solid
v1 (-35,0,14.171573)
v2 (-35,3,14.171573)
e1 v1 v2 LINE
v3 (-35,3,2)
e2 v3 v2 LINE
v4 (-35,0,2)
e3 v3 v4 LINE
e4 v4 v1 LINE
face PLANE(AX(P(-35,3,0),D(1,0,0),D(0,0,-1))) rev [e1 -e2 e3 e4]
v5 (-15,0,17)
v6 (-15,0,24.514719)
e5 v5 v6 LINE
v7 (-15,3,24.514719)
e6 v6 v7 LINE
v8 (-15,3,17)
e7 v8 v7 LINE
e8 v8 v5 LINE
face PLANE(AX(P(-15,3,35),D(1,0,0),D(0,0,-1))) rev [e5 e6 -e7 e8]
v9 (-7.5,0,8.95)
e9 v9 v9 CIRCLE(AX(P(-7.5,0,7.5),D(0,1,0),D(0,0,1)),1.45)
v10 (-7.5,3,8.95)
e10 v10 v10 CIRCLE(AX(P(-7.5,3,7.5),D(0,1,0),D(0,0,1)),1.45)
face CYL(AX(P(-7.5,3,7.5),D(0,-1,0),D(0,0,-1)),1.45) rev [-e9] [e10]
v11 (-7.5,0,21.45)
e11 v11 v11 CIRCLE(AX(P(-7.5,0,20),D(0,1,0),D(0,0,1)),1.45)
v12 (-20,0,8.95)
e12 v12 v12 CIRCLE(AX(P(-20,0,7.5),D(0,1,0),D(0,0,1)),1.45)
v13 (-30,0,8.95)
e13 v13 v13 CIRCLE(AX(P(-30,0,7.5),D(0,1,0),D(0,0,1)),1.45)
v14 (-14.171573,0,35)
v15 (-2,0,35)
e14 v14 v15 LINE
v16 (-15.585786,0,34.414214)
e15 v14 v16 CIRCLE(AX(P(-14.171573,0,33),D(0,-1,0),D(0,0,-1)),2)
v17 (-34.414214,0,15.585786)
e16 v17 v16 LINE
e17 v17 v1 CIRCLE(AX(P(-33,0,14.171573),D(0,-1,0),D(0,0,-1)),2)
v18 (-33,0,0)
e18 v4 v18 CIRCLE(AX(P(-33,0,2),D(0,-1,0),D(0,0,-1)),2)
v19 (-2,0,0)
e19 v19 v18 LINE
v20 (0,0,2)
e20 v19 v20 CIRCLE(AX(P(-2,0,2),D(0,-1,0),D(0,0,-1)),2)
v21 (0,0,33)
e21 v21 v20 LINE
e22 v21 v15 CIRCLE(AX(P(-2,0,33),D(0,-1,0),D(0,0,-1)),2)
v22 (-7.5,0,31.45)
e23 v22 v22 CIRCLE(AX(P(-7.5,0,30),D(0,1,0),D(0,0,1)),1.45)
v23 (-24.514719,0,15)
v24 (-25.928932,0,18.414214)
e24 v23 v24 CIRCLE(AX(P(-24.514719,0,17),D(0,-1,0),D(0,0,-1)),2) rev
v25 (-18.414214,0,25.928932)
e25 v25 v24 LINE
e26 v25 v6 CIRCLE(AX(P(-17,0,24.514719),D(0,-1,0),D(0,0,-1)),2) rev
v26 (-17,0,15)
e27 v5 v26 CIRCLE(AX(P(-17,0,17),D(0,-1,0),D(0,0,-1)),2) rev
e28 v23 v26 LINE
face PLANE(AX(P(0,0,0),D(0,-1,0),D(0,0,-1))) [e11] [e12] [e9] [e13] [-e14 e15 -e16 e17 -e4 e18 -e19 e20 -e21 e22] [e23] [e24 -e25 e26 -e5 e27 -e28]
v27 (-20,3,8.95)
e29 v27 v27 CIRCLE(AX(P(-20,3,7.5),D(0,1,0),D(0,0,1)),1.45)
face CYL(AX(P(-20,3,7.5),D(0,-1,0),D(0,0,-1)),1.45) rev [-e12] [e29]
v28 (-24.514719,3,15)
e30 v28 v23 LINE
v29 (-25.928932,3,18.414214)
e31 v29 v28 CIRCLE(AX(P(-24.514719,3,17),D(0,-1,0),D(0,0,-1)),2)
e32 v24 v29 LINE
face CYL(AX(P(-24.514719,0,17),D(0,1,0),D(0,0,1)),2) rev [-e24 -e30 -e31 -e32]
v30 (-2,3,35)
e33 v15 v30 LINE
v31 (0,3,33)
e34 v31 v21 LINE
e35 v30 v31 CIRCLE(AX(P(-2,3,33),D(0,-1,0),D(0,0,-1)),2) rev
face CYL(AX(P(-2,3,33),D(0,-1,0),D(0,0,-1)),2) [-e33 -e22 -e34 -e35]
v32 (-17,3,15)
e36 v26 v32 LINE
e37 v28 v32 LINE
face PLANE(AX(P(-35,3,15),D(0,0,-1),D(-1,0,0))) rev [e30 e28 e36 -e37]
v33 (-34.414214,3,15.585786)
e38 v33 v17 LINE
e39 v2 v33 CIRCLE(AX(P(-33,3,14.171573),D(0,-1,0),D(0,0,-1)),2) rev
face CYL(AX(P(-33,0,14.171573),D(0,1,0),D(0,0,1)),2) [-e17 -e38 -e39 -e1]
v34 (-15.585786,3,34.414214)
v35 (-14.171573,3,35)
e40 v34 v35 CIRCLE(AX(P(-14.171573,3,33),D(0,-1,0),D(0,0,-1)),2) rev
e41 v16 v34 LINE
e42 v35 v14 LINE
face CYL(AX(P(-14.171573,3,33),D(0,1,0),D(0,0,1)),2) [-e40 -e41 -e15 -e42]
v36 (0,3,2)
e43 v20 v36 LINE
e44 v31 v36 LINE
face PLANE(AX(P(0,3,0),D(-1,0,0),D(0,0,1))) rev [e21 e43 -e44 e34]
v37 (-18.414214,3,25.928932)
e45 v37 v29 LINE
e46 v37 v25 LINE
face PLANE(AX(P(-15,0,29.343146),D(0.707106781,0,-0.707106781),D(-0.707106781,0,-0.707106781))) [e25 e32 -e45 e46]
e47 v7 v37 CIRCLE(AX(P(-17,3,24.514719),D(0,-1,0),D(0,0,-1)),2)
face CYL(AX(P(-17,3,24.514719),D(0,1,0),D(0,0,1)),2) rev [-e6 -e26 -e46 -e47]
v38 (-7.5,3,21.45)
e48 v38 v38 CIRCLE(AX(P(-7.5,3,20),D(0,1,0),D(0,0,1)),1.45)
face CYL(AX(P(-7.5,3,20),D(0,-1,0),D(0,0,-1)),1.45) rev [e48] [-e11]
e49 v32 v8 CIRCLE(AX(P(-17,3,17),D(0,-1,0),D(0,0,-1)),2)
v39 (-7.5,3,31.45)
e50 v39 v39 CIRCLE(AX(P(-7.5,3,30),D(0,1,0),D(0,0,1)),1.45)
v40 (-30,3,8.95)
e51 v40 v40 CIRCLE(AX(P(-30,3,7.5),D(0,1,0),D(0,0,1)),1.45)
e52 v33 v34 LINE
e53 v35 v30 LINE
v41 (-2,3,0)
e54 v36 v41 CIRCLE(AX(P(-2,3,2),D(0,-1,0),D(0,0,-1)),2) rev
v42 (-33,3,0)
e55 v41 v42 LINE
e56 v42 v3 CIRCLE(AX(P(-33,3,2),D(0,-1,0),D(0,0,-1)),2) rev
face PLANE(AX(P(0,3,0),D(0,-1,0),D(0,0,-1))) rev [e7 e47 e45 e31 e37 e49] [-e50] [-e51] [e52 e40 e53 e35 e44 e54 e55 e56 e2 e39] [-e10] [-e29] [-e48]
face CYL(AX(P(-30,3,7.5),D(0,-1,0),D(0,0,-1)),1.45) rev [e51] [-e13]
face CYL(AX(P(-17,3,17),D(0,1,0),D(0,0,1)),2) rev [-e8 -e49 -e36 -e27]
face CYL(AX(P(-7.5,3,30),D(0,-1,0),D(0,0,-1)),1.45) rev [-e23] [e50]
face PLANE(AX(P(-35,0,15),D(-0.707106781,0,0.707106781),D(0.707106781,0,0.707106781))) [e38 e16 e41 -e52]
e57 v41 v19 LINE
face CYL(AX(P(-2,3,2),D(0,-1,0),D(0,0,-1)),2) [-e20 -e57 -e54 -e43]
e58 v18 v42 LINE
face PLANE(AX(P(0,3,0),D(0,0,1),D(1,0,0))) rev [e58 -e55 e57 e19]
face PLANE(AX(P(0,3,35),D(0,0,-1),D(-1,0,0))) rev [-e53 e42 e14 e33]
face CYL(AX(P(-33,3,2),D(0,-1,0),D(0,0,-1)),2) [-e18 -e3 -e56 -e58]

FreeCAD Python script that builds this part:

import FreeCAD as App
import Part
import Sketcher

V = App.Vector
Q = App.Units.Quantity


def edges_at(feature, points):
    """Names of the edges that pass closest to the given points."""
    edges = feature.Shape.Edges
    near = lambda p: min(range(len(edges)), key=lambda i: edges[i].distToShape(Part.Vertex(*p))[0])
    return sorted({f"Edge{near(p) + 1}" for p in points})


def add_polygon(sketch, points):
    """Adds a closed chain of lines whose ends are joined by coincident constraints."""
    first, n = sketch.GeometryCount, len(points)
    for a, b in zip(points, points[1:] + points[:1]):
        sketch.addGeometry(Part.LineSegment(App.Vector(*a, 0), App.Vector(*b, 0)), False)
    for i in range(n):
        sketch.addConstraint(Sketcher.Constraint("Coincident", first + i, 2, first + (i + 1) % n, 1))

doc = App.newDocument("Part")
body = doc.addObject("PartDesign::Body", "Body")

# Sketch on XZ plane
sketch1 = body.newObject("Sketcher::SketchObject", "Sketch")
sketch1.AttachmentSupport = (doc.getObject("XZ_Plane"), [""])
sketch1.MapMode = "FlatFace"
add_polygon(sketch1, [(0, 0), (-35, 0), (-35, 15), (-15, 15), (-15, 35), (0, 35)])  # lines 0-5
sketch1.addGeometry(Part.Circle(V(-7.5, 30, 0), V(0, 0, 1), 1.4), False)  # 6
sketch1.addGeometry(Part.Circle(V(-7.5, 20, 0), V(0, 0, 1), 1.4), False)  # 7
sketch1.addGeometry(Part.Circle(V(-30, 7.5, 0), V(0, 0, 1), 1.4), False)  # 8
sketch1.addGeometry(Part.Circle(V(-20, 7.5, 0), V(0, 0, 1), 1.4), False)  # 9
sketch1.addGeometry(Part.Circle(V(-7.5, 7.5, 0), V(0, 0, 1), 1.4), False)  # 10
sketch1.addConstraint([
    Sketcher.Constraint("Horizontal", 0),
    Sketcher.Constraint("Vertical", 1),
    Sketcher.Constraint("Horizontal", 2),
    Sketcher.Constraint("Vertical", 3),
    Sketcher.Constraint("Horizontal", 4),
    Sketcher.Constraint("Vertical", 5),
    Sketcher.Constraint("Coincident", 5, 2, -1, 1),
    Sketcher.Constraint("Equal", 6, 7),
    Sketcher.Constraint("Equal", 7, 8),
    Sketcher.Constraint("Equal", 8, 9),
    Sketcher.Constraint("Equal", 9, 10),
    Sketcher.Constraint("Horizontal", 8, 3, 9, 3),
    Sketcher.Constraint("Horizontal", 9, 3, 10, 3),
    Sketcher.Constraint("Vertical", 6, 3, 7, 3),
    Sketcher.Constraint("Vertical", 7, 3, 10, 3),
    Sketcher.Constraint("Equal", 4, 1),
    Sketcher.Constraint("Equal", 2, 3),
    Sketcher.Constraint("Diameter", 6, Q("2.9 mm")),
    Sketcher.Constraint("DistanceX", 0, 2, 0, 1, Q("35 mm")),
    Sketcher.Constraint("DistanceX", 2, 1, 2, 2, Q("20 mm")),
    Sketcher.Constraint("DistanceY", -1, 1, 6, 3, Q("30 mm")),
    Sketcher.Constraint("DistanceY", -1, 1, 7, 3, Q("20 mm")),
    Sketcher.Constraint("DistanceX", 8, 3, -1, 1, Q("30 mm")),
    Sketcher.Constraint("DistanceX", 9, 3, -1, 1, Q("20 mm")),
    Sketcher.Constraint("DistanceX", 6, 3, -1, 1, Q("7.5 mm")),
    Sketcher.Constraint("DistanceY", -1, 1, 8, 3, Q("7.5 mm")),
])
pad1 = body.newObject("PartDesign::Pad", "Pad")
pad1.Profile = sketch1
pad1.Length = 3
pad1.Reversed = True

# Sketch on XZ plane
sketch2 = body.newObject("Sketcher::SketchObject", "Sketch001")
sketch2.AttachmentSupport = (doc.getObject("XZ_Plane"), [""])
sketch2.MapMode = "FlatFace"
sketch2.AttachmentOffset = App.Placement(V(0, 0, -3), App.Rotation())
add_polygon(sketch2, [(-35, 15), (-15, 35), (-15, 29), (-29, 15)])  # lines 0-3
sketch2.addConstraint([
    Sketcher.Constraint("Vertical", 1),
    Sketcher.Constraint("Horizontal", 3),
    Sketcher.Constraint("Parallel", 0, 2),
    Sketcher.Constraint("Equal", 3, 1),
    Sketcher.Constraint("DistanceX", 0, 2, -1, 1, Q("15 mm")),
    Sketcher.Constraint("DistanceY", -1, 1, 0, 2, Q("35 mm")),
    Sketcher.Constraint("DistanceY", -1, 1, 2, 2, Q("15 mm")),
    Sketcher.Constraint("Distance", 2, Q("20.284271 mm")),
])
pad2 = body.newObject("PartDesign::Pad", "Pad001")
pad2.Profile = sketch2
pad2.Length = 3
doc.recompute()

fillet = body.newObject("PartDesign::Fillet", "Fillet")
fillet.Base = (pad2, edges_at(pad2, [
    (0, 1.5, 35),
    (-15, 1.5, 35),
    (-15, 1.5, 15),
    (-35, 1.5, 15),
    (-35, 1.5, 0),
    (0, 1.5, 0),
    (-29.343, 1.5, 15),
    (-15, 1.5, 29.343),
]))
fillet.Radius = 2

doc.recompute()
